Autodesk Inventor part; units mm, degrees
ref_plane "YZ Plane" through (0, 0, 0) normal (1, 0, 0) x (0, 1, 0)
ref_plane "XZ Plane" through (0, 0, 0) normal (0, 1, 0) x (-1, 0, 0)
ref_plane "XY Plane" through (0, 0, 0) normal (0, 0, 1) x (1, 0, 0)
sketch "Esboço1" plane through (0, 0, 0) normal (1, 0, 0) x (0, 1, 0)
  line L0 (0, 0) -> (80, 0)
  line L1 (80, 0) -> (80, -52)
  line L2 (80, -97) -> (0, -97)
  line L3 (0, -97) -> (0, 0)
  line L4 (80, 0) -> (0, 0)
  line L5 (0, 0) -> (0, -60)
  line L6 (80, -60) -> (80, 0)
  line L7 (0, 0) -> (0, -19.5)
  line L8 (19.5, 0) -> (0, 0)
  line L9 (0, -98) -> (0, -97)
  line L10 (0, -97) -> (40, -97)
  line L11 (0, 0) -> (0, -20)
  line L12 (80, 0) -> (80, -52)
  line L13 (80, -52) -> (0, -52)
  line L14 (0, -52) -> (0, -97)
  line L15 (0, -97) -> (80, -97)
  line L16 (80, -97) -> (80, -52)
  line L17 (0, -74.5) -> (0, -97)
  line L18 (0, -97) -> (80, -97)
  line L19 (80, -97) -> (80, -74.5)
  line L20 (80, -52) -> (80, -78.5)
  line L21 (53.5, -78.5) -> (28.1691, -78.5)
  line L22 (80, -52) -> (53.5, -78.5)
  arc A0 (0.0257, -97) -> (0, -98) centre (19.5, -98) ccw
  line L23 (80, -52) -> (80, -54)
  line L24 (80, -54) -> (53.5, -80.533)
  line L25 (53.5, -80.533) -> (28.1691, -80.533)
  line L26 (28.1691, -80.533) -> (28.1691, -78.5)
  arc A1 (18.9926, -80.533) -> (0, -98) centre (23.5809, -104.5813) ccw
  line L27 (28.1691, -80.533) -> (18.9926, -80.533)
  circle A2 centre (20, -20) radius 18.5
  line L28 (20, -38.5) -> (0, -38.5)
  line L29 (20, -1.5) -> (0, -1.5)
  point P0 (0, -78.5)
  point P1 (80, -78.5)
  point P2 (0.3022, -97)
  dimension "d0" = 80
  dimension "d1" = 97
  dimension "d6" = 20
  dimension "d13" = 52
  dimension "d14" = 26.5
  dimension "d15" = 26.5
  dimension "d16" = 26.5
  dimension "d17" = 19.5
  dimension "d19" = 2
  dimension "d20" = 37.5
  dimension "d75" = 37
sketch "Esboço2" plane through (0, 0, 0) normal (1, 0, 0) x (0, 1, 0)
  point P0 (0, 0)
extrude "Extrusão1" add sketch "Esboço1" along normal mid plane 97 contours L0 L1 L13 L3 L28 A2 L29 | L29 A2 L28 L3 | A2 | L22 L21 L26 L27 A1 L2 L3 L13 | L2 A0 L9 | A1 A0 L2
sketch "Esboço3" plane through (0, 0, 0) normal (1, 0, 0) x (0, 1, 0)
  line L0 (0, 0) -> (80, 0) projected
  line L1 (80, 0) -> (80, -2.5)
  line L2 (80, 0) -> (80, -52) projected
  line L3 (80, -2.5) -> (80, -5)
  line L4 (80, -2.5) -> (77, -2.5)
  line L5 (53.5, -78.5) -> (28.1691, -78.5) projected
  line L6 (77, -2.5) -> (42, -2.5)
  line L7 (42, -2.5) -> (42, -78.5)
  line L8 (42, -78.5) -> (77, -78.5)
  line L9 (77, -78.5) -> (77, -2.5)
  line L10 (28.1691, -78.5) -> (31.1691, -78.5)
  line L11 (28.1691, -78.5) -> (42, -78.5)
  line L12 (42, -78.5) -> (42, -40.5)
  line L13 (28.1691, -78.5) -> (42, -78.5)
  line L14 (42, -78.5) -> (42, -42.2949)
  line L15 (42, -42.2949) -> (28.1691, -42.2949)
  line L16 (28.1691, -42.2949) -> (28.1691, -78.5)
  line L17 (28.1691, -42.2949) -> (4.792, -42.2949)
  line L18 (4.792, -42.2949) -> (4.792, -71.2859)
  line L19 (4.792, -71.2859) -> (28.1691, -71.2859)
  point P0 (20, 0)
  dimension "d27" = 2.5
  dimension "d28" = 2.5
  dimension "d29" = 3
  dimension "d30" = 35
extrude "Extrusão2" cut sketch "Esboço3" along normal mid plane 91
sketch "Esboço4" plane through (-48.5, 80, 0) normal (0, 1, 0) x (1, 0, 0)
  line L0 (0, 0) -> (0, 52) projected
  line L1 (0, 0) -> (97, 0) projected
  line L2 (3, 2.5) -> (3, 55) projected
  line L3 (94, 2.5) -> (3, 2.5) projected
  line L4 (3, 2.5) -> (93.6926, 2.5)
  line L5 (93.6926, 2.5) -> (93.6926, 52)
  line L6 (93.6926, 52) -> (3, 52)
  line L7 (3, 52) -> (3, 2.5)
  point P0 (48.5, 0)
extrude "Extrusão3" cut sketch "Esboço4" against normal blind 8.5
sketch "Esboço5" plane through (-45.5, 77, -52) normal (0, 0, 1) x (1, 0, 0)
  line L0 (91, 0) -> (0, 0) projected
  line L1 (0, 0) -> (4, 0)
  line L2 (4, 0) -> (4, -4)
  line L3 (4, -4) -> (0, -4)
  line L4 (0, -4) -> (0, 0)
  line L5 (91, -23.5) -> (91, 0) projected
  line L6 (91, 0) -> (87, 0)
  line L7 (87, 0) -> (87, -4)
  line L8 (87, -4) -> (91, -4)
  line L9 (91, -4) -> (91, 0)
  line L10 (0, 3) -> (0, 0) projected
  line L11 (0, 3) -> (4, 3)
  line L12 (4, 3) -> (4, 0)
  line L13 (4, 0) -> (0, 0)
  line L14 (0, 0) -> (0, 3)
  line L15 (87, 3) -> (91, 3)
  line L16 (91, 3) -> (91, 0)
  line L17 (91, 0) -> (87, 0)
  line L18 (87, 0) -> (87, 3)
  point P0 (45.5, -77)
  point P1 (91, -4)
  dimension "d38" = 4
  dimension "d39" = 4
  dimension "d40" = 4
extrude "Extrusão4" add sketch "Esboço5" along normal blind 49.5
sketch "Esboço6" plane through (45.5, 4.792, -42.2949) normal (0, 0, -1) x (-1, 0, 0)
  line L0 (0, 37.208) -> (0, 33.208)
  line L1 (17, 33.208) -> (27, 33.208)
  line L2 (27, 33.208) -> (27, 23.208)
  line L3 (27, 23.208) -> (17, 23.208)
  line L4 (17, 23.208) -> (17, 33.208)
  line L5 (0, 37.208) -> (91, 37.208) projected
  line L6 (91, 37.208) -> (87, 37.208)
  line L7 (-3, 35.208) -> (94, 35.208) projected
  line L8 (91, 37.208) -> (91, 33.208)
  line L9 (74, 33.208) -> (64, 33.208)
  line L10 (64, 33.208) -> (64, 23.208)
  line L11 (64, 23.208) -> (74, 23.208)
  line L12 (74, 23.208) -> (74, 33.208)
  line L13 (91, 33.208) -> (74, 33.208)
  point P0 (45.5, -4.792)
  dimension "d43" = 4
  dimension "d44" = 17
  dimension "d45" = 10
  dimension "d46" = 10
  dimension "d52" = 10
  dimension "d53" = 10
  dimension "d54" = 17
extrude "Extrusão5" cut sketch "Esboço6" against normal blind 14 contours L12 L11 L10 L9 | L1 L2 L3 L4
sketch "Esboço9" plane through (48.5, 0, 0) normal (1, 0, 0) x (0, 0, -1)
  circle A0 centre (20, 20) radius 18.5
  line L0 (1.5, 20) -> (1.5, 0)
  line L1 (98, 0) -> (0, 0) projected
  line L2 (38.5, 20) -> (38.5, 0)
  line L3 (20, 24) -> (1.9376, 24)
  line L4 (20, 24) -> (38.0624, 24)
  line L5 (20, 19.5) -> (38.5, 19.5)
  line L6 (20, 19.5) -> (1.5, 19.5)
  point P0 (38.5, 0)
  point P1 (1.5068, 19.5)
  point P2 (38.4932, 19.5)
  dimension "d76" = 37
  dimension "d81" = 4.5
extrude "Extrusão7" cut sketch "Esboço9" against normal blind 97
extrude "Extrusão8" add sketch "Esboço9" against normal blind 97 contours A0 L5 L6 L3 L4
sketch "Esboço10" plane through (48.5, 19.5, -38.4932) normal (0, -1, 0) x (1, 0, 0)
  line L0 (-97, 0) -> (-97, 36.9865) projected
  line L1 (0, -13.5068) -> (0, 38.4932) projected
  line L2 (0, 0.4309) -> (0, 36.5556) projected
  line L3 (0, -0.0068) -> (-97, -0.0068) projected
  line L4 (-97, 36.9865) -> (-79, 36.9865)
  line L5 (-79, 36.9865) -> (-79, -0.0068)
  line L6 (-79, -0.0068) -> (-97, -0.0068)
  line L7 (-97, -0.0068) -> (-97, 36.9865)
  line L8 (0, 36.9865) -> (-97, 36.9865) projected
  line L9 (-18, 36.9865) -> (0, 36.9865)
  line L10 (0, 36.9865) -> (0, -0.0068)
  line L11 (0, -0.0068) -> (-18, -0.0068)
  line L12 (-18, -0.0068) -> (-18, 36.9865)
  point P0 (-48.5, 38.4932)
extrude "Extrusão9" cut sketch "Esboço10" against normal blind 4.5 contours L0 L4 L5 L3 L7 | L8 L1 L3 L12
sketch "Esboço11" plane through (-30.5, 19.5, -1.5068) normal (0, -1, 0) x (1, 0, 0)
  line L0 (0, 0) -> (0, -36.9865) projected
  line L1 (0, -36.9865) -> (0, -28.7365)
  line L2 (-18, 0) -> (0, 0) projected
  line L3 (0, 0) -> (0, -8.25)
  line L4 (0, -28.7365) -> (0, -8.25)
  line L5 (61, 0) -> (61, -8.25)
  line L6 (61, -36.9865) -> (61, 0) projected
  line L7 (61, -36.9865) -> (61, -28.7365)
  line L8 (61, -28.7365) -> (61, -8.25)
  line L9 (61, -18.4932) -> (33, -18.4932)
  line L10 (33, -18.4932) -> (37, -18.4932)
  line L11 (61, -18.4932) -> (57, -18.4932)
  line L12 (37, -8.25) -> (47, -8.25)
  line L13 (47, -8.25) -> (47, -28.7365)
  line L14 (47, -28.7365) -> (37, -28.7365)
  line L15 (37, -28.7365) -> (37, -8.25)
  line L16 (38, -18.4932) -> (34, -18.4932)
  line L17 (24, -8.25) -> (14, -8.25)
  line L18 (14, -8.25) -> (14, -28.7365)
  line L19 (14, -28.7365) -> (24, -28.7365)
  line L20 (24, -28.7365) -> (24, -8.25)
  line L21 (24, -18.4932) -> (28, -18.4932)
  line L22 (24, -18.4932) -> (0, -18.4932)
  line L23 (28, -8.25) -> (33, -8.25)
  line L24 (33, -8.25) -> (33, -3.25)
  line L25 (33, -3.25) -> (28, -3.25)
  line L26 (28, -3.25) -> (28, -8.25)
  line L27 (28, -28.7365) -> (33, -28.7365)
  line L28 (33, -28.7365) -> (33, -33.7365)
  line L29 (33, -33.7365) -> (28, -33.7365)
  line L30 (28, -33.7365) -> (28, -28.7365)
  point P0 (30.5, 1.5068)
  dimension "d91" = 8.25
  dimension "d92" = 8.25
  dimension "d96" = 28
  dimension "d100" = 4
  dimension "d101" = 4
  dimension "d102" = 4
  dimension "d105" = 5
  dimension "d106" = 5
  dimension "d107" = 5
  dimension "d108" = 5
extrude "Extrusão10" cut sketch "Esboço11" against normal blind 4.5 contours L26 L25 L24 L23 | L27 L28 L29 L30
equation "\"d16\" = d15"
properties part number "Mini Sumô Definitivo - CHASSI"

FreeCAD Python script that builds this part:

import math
import FreeCAD as App
import Part
import Sketcher

V = App.Vector
Q = App.Units.Quantity

doc = App.newDocument("Part")
body = doc.addObject("PartDesign::Body", "Body")

# Sketch on YZ plane
sketch1 = body.newObject("Sketcher::SketchObject", "Sketch")
sketch1.AttachmentSupport = (doc.getObject("YZ_Plane"), [""])
sketch1.MapMode = "FlatFace"
sketch1.addGeometry([
    Part.LineSegment(V(0, 0, 0), V(0, -98, 0)),  # 0
    Part.ArcOfCircle(Part.Circle(V(23.6, -104.6, 0), V(0, 0, 1), 24.5), math.radians(101), math.radians(164)),  # 1
    Part.LineSegment(V(19, -80.5, 0), V(28.2, -80.5, 0)),  # 2
    Part.LineSegment(V(28.2, -80.5, 0), V(28.2, -78.5, 0)),  # 3
    Part.LineSegment(V(28.2, -78.5, 0), V(53.5, -78.5, 0)),  # 4
    Part.LineSegment(V(53.5, -78.5, 0), V(80, -52, 0)),  # 5
    Part.LineSegment(V(80, -52, 0), V(80, 0, 0)),  # 6
    Part.LineSegment(V(80, 0, 0), V(0, 0, 0)),  # 7
], False)
sketch1.addConstraint([
    Sketcher.Constraint("Coincident", 0, 2, 1, 2),
    Sketcher.Constraint("Coincident", 1, 1, 2, 1),
    Sketcher.Constraint("Coincident", 2, 2, 3, 1),
    Sketcher.Constraint("Coincident", 3, 2, 4, 1),
    Sketcher.Constraint("Coincident", 4, 2, 5, 1),
    Sketcher.Constraint("Coincident", 5, 2, 6, 1),
    Sketcher.Constraint("Coincident", 6, 2, 7, 1),
    Sketcher.Constraint("Coincident", 7, 2, 0, 1),
    Sketcher.Constraint("Vertical", 0),
    Sketcher.Constraint("Horizontal", 2),
    Sketcher.Constraint("Vertical", 3),
    Sketcher.Constraint("Horizontal", 4),
    Sketcher.Constraint("Vertical", 6),
    Sketcher.Constraint("Horizontal", 7),
    Sketcher.Constraint("Coincident", 7, 2, -1, 1),
    Sketcher.Constraint("DistanceX", 7, 2, 7, 1, Q("80 mm")),
    Sketcher.Constraint("DistanceY", 6, 1, 6, 2, Q("52 mm")),
    Sketcher.Constraint("DistanceY", 0, 2, 3, 2, Q("19.5 mm")),
    Sketcher.Constraint("DistanceX", 4, 2, 5, 2, Q("26.5 mm")),
    Sketcher.Constraint("DistanceY", 4, 2, 5, 2, Q("26.5 mm")),
    Sketcher.Constraint("Radius", 1, Q("24.482 mm")),
    Sketcher.Constraint("DistanceX", 4, 1, 4, 2, Q("25.331 mm")),
    Sketcher.Constraint("DistanceY", 3, 1, 3, 2, Q("2.033 mm")),
    Sketcher.Constraint("DistanceX", 2, 1, 2, 2, Q("9.1765 mm")),
])
pad1 = body.newObject("PartDesign::Pad", "Pad")
pad1.Profile = sketch1
pad1.Length = 97
pad1.Midplane = True

# Sketch on YZ plane
sketch2 = body.newObject("Sketcher::SketchObject", "Sketch001")
sketch2.AttachmentSupport = (doc.getObject("YZ_Plane"), [""])
sketch2.MapMode = "FlatFace"
sketch2.addGeometry([
    Part.LineSegment(V(77, -78, 0), V(77, -2, 0)),  # 0
    Part.LineSegment(V(77, -2, 0), V(42, -2, 0)),  # 1
    Part.LineSegment(V(42, -2, 0), V(42, -42, 0)),  # 2
    Part.LineSegment(V(42, -42, 0), V(5, -42, 0)),  # 3
    Part.LineSegment(V(5, -42, 0), V(5, -71, 0)),  # 4
    Part.LineSegment(V(5, -71, 0), V(28, -71, 0)),  # 5
    Part.LineSegment(V(28, -71, 0), V(28, -78, 0)),  # 6
    Part.LineSegment(V(28, -78, 0), V(77, -78, 0)),  # 7
], False)
sketch2.addConstraint([
    Sketcher.Constraint("Coincident", 0, 2, 1, 1),
    Sketcher.Constraint("Coincident", 1, 2, 2, 1),
    Sketcher.Constraint("Coincident", 2, 2, 3, 1),
    Sketcher.Constraint("Coincident", 3, 2, 4, 1),
    Sketcher.Constraint("Coincident", 4, 2, 5, 1),
    Sketcher.Constraint("Coincident", 5, 2, 6, 1),
    Sketcher.Constraint("Coincident", 6, 2, 7, 1),
    Sketcher.Constraint("Coincident", 7, 2, 0, 1),
    Sketcher.Constraint("Vertical", 0),
    Sketcher.Constraint("Horizontal", 1),
    Sketcher.Constraint("Vertical", 2),
    Sketcher.Constraint("Horizontal", 3),
    Sketcher.Constraint("Vertical", 4),
    Sketcher.Constraint("Horizontal", 5),
    Sketcher.Constraint("Vertical", 6),
    Sketcher.Constraint("Horizontal", 7),
    Sketcher.Constraint("DistanceX", 1, 2, 1, 1, Q("35 mm")),
    Sketcher.Constraint("DistanceY", 0, 2, -1, 1, Q("2.5 mm")),
    Sketcher.Constraint("DistanceY", 0, 1, 0, 2, Q("76 mm")),
    Sketcher.Constraint("DistanceX", -1, 1, 0, 2, Q("77 mm")),
    Sketcher.Constraint("DistanceX", 3, 2, 3, 1, Q("37.208 mm")),
    Sketcher.Constraint("DistanceX", 5, 1, 5, 2, Q("23.377 mm")),
    Sketcher.Constraint("DistanceY", 2, 2, 2, 1, Q("39.795 mm")),
    Sketcher.Constraint("DistanceY", 4, 2, 4, 1, Q("28.991 mm")),
])
pocket1 = body.newObject("PartDesign::Pocket", "Pocket")
pocket1.Profile = sketch2
pocket1.Length = 91
pocket1.Midplane = True

# Sketch on XZ plane
sketch3 = body.newObject("Sketcher::SketchObject", "Sketch002")
sketch3.AttachmentSupport = (doc.getObject("XZ_Plane"), [""])
sketch3.MapMode = "FlatFace"
sketch3.AttachmentOffset = App.Placement(V(0, 0, -80), App.Rotation())
sketch3.addGeometry([
    Part.LineSegment(V(-46, -52, 0), V(-46, -2, 0)),
    Part.LineSegment(V(-46, -2, 0), V(45, -2, 0)),
    Part.LineSegment(V(45, -2, 0), V(45, -52, 0)),
    Part.LineSegment(V(45, -52, 0), V(-46, -52, 0)),
], False)
sketch3.addConstraint([
    Sketcher.Constraint("Coincident", 0, 2, 1, 1),
    Sketcher.Constraint("Coincident", 1, 2, 2, 1),
    Sketcher.Constraint("Coincident", 2, 2, 3, 1),
    Sketcher.Constraint("Coincident", 3, 2, 0, 1),
    Sketcher.Constraint("Vertical", 0),
    Sketcher.Constraint("Horizontal", 1),
    Sketcher.Constraint("Vertical", 2),
    Sketcher.Constraint("Horizontal", 3),
    Sketcher.Constraint("DistanceY", 0, 1, 0, 2, Q("49.5 mm")),
    Sketcher.Constraint("DistanceY", 2, 2, -1, 1, Q("52 mm")),
    Sketcher.Constraint("DistanceX", 0, 2, -1, 1, Q("45.5 mm")),
    Sketcher.Constraint("DistanceX", 1, 1, 1, 2, Q("90.6926 mm")),
])
pocket2 = body.newObject("PartDesign::Pocket", "Pocket001")
pocket2.Profile = sketch3
pocket2.Length = 8.5
pocket2.Reversed = True

# Sketch on XY plane
sketch4 = body.newObject("Sketcher::SketchObject", "Sketch003")
sketch4.AttachmentSupport = (doc.getObject("XY_Plane"), [""])
sketch4.MapMode = "FlatFace"
sketch4.AttachmentOffset = App.Placement(V(0, 0, -52), App.Rotation())
sketch4.addGeometry([
    Part.LineSegment(V(45.5, 73, 0), V(45.5, 80, 0)),  # 0
    Part.LineSegment(V(45.5, 80, 0), V(41.5, 80, 0)),  # 1
    Part.LineSegment(V(41.5, 80, 0), V(41.5, 73, 0)),  # 2
    Part.LineSegment(V(41.5, 73, 0), V(45.5, 73, 0)),  # 3
    Part.LineSegment(V(-41.5, 73, 0), V(-41.5, 80, 0)),  # 4
    Part.LineSegment(V(-41.5, 80, 0), V(-45.5, 80, 0)),  # 5
    Part.LineSegment(V(-45.5, 80, 0), V(-45.5, 73, 0)),  # 6
    Part.LineSegment(V(-45.5, 73, 0), V(-41.5, 73, 0)),  # 7
], False)
sketch4.addConstraint([
    Sketcher.Constraint("Coincident", 0, 2, 1, 1),
    Sketcher.Constraint("Coincident", 1, 2, 2, 1),
    Sketcher.Constraint("Coincident", 2, 2, 3, 1),
    Sketcher.Constraint("Coincident", 3, 2, 0, 1),
    Sketcher.Constraint("Coincident", 4, 2, 5, 1),
    Sketcher.Constraint("Coincident", 5, 2, 6, 1),
    Sketcher.Constraint("Coincident", 6, 2, 7, 1),
    Sketcher.Constraint("Coincident", 7, 2, 4, 1),
    Sketcher.Constraint("Vertical", 0),
    Sketcher.Constraint("Horizontal", 1),
    Sketcher.Constraint("Vertical", 2),
    Sketcher.Constraint("Horizontal", 3),
    Sketcher.Constraint("Vertical", 4),
    Sketcher.Constraint("Horizontal", 5),
    Sketcher.Constraint("Vertical", 6),
    Sketcher.Constraint("Horizontal", 7),
    Sketcher.Constraint("Symmetric", 1, 2, 4, 2, -2),
    Sketcher.Constraint("Symmetric", 3, 2, 6, 2, -2),
    Sketcher.Constraint("DistanceX", 1, 2, 1, 1, Q("4 mm")),
    Sketcher.Constraint("DistanceY", 0, 1, 0, 2, Q("7 mm")),
    Sketcher.Constraint("DistanceY", -1, 1, 0, 2, Q("80 mm")),
    Sketcher.Constraint("DistanceX", 4, 2, 1, 2, Q("83 mm")),
])
pad2 = body.newObject("PartDesign::Pad", "Pad001")
pad2.Profile = sketch4
pad2.Length = 49.5

# Sketch on XY plane
sketch5 = body.newObject("Sketcher::SketchObject", "Sketch004")
sketch5.AttachmentSupport = (doc.getObject("XY_Plane"), [""])
sketch5.MapMode = "FlatFace"
sketch5.AttachmentOffset = App.Placement(V(0, 0, -42.2949), App.Rotation())
sketch5.addGeometry([
    Part.LineSegment(V(-28, 28, 0), V(-28, 38, 0)),  # 0
    Part.LineSegment(V(-28, 38, 0), V(-18, 38, 0)),  # 1
    Part.LineSegment(V(-18, 38, 0), V(-18, 28, 0)),  # 2
    Part.LineSegment(V(-18, 28, 0), V(-28, 28, 0)),  # 3
    Part.LineSegment(V(18, 38, 0), V(28, 38, 0)),  # 4
    Part.LineSegment(V(28, 38, 0), V(28, 28, 0)),  # 5
    Part.LineSegment(V(28, 28, 0), V(18, 28, 0)),  # 6
    Part.LineSegment(V(18, 28, 0), V(18, 38, 0)),  # 7
], False)
sketch5.addConstraint([
    Sketcher.Constraint("Coincident", 0, 2, 1, 1),
    Sketcher.Constraint("Coincident", 1, 2, 2, 1),
    Sketcher.Constraint("Coincident", 2, 2, 3, 1),
    Sketcher.Constraint("Coincident", 3, 2, 0, 1),
    Sketcher.Constraint("Coincident", 4, 2, 5, 1),
    Sketcher.Constraint("Coincident", 5, 2, 6, 1),
    Sketcher.Constraint("Coincident", 6, 2, 7, 1),
    Sketcher.Constraint("Coincident", 7, 2, 4, 1),
    Sketcher.Constraint("Vertical", 0),
    Sketcher.Constraint("Horizontal", 1),
    Sketcher.Constraint("Vertical", 2),
    Sketcher.Constraint("Horizontal", 3),
    Sketcher.Constraint("Horizontal", 4),
    Sketcher.Constraint("Vertical", 5),
    Sketcher.Constraint("Horizontal", 6),
    Sketcher.Constraint("Vertical", 7),
    Sketcher.Constraint("Symmetric", 0, 2, 4, 2, -2),
    Sketcher.Constraint("Symmetric", 2, 2, 6, 2, -2),
    Sketcher.Constraint("Equal", 6, 0),
    Sketcher.Constraint("DistanceX", 1, 1, 1, 2, Q("10 mm")),
    Sketcher.Constraint("DistanceY", -1, 1, 0, 2, Q("38 mm")),
    Sketcher.Constraint("DistanceX", 1, 2, 4, 2, Q("47 mm")),
])
pocket3 = body.newObject("PartDesign::Pocket", "Pocket002")
pocket3.Profile = sketch5
pocket3.Length = 14
pocket3.Reversed = True

# Sketch on YZ plane
sketch6 = body.newObject("Sketcher::SketchObject", "Sketch005")
sketch6.AttachmentSupport = (doc.getObject("YZ_Plane"), [""])
sketch6.MapMode = "FlatFace"
sketch6.AttachmentOffset = App.Placement(V(0, 0, 48.5), App.Rotation())
sketch6.addGeometry([
    Part.LineSegment(V(20, -2, 0), V(0, -2, 0)),
    Part.LineSegment(V(0, -2, 0), V(0, -38, 0)),
    Part.LineSegment(V(0, -38, 0), V(20, -38, 0)),
    Part.ArcOfCircle(Part.Circle(V(20, -20, 0), V(0, 0, 1), 18), math.radians(-90), math.radians(90)),
], False)
sketch6.addConstraint([
    Sketcher.Constraint("Coincident", 0, 2, 1, 1),
    Sketcher.Constraint("Coincident", 1, 2, 2, 1),
    Sketcher.Constraint("Tangent", 2, 2, 3, 1),
    Sketcher.Constraint("Tangent", 3, 2, 0, 1),
    Sketcher.Constraint("Horizontal", 0),
    Sketcher.Constraint("Vertical", 1),
    Sketcher.Constraint("Horizontal", 2),
    Sketcher.Constraint("PointOnObject", 0, 2, -2),
    Sketcher.Constraint("Radius", 3, Q("18.5 mm")),
    Sketcher.Constraint("DistanceX", 0, 2, 0, 1, Q("20 mm")),
    Sketcher.Constraint("DistanceY", 3, 3, -1, 1, Q("20 mm")),
])
pocket4 = body.newObject("PartDesign::Pocket", "Pocket003")
pocket4.Profile = sketch6
pocket4.Length = 97

# Sketch on YZ plane
sketch7 = body.newObject("Sketcher::SketchObject", "Sketch006")
sketch7.AttachmentSupport = (doc.getObject("YZ_Plane"), [""])
sketch7.MapMode = "FlatFace"
sketch7.AttachmentOffset = App.Placement(V(0, 0, 48.5), App.Rotation())
sketch7.addGeometry([
    Part.ArcOfCircle(Part.Circle(V(20, -20, 0), V(0, 0, 1), 18.5), math.radians(-91.55), math.radians(-77.51)),
    Part.LineSegment(V(24, -38.1, 0), V(24, -1.9, 0)),
    Part.ArcOfCircle(Part.Circle(V(20, -20, 0), V(0, 0, 1), 18.5), math.radians(77.51), math.radians(91.55)),
    Part.LineSegment(V(19.5, -1.5, 0), V(19.5, -38.5, 0)),
], False)
sketch7.addConstraint([
    Sketcher.Constraint("Coincident", 0, 2, 1, 1),
    Sketcher.Constraint("Coincident", 1, 2, 2, 1),
    Sketcher.Constraint("Coincident", 2, 2, 3, 1),
    Sketcher.Constraint("Coincident", 3, 2, 0, 1),
    Sketcher.Constraint("Vertical", 1),
    Sketcher.Constraint("Vertical", 3),
    Sketcher.Constraint("Coincident", 2, 3, 0, 3),
    Sketcher.Constraint("Equal", 0, 2),
    Sketcher.Constraint("Radius", 0, Q("18.5 mm")),
    Sketcher.Constraint("DistanceX", 2, 2, 1, 2, Q("4.5 mm")),
    Sketcher.Constraint("DistanceX", -1, 1, 0, 3, Q("20 mm")),
    Sketcher.Constraint("DistanceY", 0, 3, -1, 1, Q("20 mm")),
    Sketcher.Constraint("DistanceX", -1, 1, 0, 2, Q("24 mm")),
])
pad3 = body.newObject("PartDesign::Pad", "Pad002")
pad3.Profile = sketch7
pad3.Length = 97
pad3.Reversed = True

# Sketch on XZ plane
sketch8 = body.newObject("Sketcher::SketchObject", "Sketch007")
sketch8.AttachmentSupport = (doc.getObject("XZ_Plane"), [""])
sketch8.MapMode = "FlatFace"
sketch8.AttachmentOffset = App.Placement(V(0, 0, -19.5), App.Rotation())
sketch8.addGeometry([
    Part.LineSegment(V(-48, -2, 0), V(-48, -38, 0)),  # 0
    Part.LineSegment(V(-48, -38, 0), V(-30, -38, 0)),  # 1
    Part.LineSegment(V(-30, -38, 0), V(-30, -2, 0)),  # 2
    Part.LineSegment(V(-30, -2, 0), V(-48, -2, 0)),  # 3
    Part.LineSegment(V(48, -2, 0), V(30, -2, 0)),  # 4
    Part.LineSegment(V(30, -2, 0), V(30, -38, 0)),  # 5
    Part.LineSegment(V(30, -38, 0), V(48, -38, 0)),  # 6
    Part.LineSegment(V(48, -38, 0), V(48, -2, 0)),  # 7
], False)
sketch8.addConstraint([
    Sketcher.Constraint("Coincident", 0, 2, 1, 1),
    Sketcher.Constraint("Coincident", 1, 2, 2, 1),
    Sketcher.Constraint("Coincident", 2, 2, 3, 1),
    Sketcher.Constraint("Coincident", 3, 2, 0, 1),
    Sketcher.Constraint("Coincident", 4, 2, 5, 1),
    Sketcher.Constraint("Coincident", 5, 2, 6, 1),
    Sketcher.Constraint("Coincident", 6, 2, 7, 1),
    Sketcher.Constraint("Coincident", 7, 2, 4, 1),
    Sketcher.Constraint("Vertical", 0),
    Sketcher.Constraint("Horizontal", 1),
    Sketcher.Constraint("Vertical", 2),
    Sketcher.Constraint("Horizontal", 3),
    Sketcher.Constraint("Horizontal", 4),
    Sketcher.Constraint("Vertical", 5),
    Sketcher.Constraint("Horizontal", 6),
    Sketcher.Constraint("Vertical", 7),
    Sketcher.Constraint("Symmetric", 2, 2, 4, 2, -2),
    Sketcher.Constraint("Symmetric", 0, 2, 6, 2, -2),
    Sketcher.Constraint("DistanceX", 1, 1, 1, 2, Q("18 mm")),
    Sketcher.Constraint("DistanceX", 2, 2, 4, 2, Q("61 mm")),
    Sketcher.Constraint("DistanceY", 0, 2, -1, 1, Q("38.5 mm")),
    Sketcher.Constraint("DistanceY", 0, 2, 0, 1, Q("36.9933 mm")),
])
pocket5 = body.newObject("PartDesign::Pocket", "Pocket004")
pocket5.Profile = sketch8
pocket5.Length = 4.5

# Sketch on XZ plane
sketch9 = body.newObject("Sketcher::SketchObject", "Sketch008")
sketch9.AttachmentSupport = (doc.getObject("XZ_Plane"), [""])
sketch9.MapMode = "FlatFace"
sketch9.AttachmentOffset = App.Placement(V(0, 0, -19.5), App.Rotation())
sketch9.addGeometry([
    Part.LineSegment(V(-2.5, -4.8, 0), V(-2.5, -9.8, 0)),  # 0
    Part.LineSegment(V(-2.5, -9.8, 0), V(2.5, -9.8, 0)),  # 1
    Part.LineSegment(V(2.5, -9.8, 0), V(2.5, -4.8, 0)),  # 2
    Part.LineSegment(V(2.5, -4.8, 0), V(-2.5, -4.8, 0)),  # 3
    Part.LineSegment(V(2.5, -30.2, 0), V(-2.5, -30.2, 0)),  # 4
    Part.LineSegment(V(-2.5, -30.2, 0), V(-2.5, -35.2, 0)),  # 5
    Part.LineSegment(V(-2.5, -35.2, 0), V(2.5, -35.2, 0)),  # 6
    Part.LineSegment(V(2.5, -35.2, 0), V(2.5, -30.2, 0)),  # 7
], False)
sketch9.addConstraint([
    Sketcher.Constraint("Coincident", 0, 2, 1, 1),
    Sketcher.Constraint("Coincident", 1, 2, 2, 1),
    Sketcher.Constraint("Coincident", 2, 2, 3, 1),
    Sketcher.Constraint("Coincident", 3, 2, 0, 1),
    Sketcher.Constraint("Coincident", 4, 2, 5, 1),
    Sketcher.Constraint("Coincident", 5, 2, 6, 1),
    Sketcher.Constraint("Coincident", 6, 2, 7, 1),
    Sketcher.Constraint("Coincident", 7, 2, 4, 1),
    Sketcher.Constraint("Vertical", 0),
    Sketcher.Constraint("Horizontal", 1),
    Sketcher.Constraint("Vertical", 2),
    Sketcher.Constraint("Horizontal", 3),
    Sketcher.Constraint("Horizontal", 4),
    Sketcher.Constraint("Vertical", 5),
    Sketcher.Constraint("Horizontal", 6),
    Sketcher.Constraint("Vertical", 7),
    Sketcher.Constraint("Vertical", 3, 2, 4, 2),
    Sketcher.Constraint("Vertical", 2, 2, 6, 2),
    Sketcher.Constraint("Equal", 6, 0),
    Sketcher.Constraint("Equal", 2, 5),
    Sketcher.Constraint("DistanceX", 1, 1, 1, 2, Q("5 mm")),
    Sketcher.Constraint("DistanceX", 0, 2, -1, 1, Q("2.5 mm")),
    Sketcher.Constraint("DistanceY", 0, 2, -1, 1, Q("9.7568 mm")),
    Sketcher.Constraint("DistanceY", 4, 2, -1, 1, Q("30.2433 mm")),
])
pocket6 = body.newObject("PartDesign::Pocket", "Pocket005")
pocket6.Profile = sketch9
pocket6.Length = 4.5

doc.recompute()
